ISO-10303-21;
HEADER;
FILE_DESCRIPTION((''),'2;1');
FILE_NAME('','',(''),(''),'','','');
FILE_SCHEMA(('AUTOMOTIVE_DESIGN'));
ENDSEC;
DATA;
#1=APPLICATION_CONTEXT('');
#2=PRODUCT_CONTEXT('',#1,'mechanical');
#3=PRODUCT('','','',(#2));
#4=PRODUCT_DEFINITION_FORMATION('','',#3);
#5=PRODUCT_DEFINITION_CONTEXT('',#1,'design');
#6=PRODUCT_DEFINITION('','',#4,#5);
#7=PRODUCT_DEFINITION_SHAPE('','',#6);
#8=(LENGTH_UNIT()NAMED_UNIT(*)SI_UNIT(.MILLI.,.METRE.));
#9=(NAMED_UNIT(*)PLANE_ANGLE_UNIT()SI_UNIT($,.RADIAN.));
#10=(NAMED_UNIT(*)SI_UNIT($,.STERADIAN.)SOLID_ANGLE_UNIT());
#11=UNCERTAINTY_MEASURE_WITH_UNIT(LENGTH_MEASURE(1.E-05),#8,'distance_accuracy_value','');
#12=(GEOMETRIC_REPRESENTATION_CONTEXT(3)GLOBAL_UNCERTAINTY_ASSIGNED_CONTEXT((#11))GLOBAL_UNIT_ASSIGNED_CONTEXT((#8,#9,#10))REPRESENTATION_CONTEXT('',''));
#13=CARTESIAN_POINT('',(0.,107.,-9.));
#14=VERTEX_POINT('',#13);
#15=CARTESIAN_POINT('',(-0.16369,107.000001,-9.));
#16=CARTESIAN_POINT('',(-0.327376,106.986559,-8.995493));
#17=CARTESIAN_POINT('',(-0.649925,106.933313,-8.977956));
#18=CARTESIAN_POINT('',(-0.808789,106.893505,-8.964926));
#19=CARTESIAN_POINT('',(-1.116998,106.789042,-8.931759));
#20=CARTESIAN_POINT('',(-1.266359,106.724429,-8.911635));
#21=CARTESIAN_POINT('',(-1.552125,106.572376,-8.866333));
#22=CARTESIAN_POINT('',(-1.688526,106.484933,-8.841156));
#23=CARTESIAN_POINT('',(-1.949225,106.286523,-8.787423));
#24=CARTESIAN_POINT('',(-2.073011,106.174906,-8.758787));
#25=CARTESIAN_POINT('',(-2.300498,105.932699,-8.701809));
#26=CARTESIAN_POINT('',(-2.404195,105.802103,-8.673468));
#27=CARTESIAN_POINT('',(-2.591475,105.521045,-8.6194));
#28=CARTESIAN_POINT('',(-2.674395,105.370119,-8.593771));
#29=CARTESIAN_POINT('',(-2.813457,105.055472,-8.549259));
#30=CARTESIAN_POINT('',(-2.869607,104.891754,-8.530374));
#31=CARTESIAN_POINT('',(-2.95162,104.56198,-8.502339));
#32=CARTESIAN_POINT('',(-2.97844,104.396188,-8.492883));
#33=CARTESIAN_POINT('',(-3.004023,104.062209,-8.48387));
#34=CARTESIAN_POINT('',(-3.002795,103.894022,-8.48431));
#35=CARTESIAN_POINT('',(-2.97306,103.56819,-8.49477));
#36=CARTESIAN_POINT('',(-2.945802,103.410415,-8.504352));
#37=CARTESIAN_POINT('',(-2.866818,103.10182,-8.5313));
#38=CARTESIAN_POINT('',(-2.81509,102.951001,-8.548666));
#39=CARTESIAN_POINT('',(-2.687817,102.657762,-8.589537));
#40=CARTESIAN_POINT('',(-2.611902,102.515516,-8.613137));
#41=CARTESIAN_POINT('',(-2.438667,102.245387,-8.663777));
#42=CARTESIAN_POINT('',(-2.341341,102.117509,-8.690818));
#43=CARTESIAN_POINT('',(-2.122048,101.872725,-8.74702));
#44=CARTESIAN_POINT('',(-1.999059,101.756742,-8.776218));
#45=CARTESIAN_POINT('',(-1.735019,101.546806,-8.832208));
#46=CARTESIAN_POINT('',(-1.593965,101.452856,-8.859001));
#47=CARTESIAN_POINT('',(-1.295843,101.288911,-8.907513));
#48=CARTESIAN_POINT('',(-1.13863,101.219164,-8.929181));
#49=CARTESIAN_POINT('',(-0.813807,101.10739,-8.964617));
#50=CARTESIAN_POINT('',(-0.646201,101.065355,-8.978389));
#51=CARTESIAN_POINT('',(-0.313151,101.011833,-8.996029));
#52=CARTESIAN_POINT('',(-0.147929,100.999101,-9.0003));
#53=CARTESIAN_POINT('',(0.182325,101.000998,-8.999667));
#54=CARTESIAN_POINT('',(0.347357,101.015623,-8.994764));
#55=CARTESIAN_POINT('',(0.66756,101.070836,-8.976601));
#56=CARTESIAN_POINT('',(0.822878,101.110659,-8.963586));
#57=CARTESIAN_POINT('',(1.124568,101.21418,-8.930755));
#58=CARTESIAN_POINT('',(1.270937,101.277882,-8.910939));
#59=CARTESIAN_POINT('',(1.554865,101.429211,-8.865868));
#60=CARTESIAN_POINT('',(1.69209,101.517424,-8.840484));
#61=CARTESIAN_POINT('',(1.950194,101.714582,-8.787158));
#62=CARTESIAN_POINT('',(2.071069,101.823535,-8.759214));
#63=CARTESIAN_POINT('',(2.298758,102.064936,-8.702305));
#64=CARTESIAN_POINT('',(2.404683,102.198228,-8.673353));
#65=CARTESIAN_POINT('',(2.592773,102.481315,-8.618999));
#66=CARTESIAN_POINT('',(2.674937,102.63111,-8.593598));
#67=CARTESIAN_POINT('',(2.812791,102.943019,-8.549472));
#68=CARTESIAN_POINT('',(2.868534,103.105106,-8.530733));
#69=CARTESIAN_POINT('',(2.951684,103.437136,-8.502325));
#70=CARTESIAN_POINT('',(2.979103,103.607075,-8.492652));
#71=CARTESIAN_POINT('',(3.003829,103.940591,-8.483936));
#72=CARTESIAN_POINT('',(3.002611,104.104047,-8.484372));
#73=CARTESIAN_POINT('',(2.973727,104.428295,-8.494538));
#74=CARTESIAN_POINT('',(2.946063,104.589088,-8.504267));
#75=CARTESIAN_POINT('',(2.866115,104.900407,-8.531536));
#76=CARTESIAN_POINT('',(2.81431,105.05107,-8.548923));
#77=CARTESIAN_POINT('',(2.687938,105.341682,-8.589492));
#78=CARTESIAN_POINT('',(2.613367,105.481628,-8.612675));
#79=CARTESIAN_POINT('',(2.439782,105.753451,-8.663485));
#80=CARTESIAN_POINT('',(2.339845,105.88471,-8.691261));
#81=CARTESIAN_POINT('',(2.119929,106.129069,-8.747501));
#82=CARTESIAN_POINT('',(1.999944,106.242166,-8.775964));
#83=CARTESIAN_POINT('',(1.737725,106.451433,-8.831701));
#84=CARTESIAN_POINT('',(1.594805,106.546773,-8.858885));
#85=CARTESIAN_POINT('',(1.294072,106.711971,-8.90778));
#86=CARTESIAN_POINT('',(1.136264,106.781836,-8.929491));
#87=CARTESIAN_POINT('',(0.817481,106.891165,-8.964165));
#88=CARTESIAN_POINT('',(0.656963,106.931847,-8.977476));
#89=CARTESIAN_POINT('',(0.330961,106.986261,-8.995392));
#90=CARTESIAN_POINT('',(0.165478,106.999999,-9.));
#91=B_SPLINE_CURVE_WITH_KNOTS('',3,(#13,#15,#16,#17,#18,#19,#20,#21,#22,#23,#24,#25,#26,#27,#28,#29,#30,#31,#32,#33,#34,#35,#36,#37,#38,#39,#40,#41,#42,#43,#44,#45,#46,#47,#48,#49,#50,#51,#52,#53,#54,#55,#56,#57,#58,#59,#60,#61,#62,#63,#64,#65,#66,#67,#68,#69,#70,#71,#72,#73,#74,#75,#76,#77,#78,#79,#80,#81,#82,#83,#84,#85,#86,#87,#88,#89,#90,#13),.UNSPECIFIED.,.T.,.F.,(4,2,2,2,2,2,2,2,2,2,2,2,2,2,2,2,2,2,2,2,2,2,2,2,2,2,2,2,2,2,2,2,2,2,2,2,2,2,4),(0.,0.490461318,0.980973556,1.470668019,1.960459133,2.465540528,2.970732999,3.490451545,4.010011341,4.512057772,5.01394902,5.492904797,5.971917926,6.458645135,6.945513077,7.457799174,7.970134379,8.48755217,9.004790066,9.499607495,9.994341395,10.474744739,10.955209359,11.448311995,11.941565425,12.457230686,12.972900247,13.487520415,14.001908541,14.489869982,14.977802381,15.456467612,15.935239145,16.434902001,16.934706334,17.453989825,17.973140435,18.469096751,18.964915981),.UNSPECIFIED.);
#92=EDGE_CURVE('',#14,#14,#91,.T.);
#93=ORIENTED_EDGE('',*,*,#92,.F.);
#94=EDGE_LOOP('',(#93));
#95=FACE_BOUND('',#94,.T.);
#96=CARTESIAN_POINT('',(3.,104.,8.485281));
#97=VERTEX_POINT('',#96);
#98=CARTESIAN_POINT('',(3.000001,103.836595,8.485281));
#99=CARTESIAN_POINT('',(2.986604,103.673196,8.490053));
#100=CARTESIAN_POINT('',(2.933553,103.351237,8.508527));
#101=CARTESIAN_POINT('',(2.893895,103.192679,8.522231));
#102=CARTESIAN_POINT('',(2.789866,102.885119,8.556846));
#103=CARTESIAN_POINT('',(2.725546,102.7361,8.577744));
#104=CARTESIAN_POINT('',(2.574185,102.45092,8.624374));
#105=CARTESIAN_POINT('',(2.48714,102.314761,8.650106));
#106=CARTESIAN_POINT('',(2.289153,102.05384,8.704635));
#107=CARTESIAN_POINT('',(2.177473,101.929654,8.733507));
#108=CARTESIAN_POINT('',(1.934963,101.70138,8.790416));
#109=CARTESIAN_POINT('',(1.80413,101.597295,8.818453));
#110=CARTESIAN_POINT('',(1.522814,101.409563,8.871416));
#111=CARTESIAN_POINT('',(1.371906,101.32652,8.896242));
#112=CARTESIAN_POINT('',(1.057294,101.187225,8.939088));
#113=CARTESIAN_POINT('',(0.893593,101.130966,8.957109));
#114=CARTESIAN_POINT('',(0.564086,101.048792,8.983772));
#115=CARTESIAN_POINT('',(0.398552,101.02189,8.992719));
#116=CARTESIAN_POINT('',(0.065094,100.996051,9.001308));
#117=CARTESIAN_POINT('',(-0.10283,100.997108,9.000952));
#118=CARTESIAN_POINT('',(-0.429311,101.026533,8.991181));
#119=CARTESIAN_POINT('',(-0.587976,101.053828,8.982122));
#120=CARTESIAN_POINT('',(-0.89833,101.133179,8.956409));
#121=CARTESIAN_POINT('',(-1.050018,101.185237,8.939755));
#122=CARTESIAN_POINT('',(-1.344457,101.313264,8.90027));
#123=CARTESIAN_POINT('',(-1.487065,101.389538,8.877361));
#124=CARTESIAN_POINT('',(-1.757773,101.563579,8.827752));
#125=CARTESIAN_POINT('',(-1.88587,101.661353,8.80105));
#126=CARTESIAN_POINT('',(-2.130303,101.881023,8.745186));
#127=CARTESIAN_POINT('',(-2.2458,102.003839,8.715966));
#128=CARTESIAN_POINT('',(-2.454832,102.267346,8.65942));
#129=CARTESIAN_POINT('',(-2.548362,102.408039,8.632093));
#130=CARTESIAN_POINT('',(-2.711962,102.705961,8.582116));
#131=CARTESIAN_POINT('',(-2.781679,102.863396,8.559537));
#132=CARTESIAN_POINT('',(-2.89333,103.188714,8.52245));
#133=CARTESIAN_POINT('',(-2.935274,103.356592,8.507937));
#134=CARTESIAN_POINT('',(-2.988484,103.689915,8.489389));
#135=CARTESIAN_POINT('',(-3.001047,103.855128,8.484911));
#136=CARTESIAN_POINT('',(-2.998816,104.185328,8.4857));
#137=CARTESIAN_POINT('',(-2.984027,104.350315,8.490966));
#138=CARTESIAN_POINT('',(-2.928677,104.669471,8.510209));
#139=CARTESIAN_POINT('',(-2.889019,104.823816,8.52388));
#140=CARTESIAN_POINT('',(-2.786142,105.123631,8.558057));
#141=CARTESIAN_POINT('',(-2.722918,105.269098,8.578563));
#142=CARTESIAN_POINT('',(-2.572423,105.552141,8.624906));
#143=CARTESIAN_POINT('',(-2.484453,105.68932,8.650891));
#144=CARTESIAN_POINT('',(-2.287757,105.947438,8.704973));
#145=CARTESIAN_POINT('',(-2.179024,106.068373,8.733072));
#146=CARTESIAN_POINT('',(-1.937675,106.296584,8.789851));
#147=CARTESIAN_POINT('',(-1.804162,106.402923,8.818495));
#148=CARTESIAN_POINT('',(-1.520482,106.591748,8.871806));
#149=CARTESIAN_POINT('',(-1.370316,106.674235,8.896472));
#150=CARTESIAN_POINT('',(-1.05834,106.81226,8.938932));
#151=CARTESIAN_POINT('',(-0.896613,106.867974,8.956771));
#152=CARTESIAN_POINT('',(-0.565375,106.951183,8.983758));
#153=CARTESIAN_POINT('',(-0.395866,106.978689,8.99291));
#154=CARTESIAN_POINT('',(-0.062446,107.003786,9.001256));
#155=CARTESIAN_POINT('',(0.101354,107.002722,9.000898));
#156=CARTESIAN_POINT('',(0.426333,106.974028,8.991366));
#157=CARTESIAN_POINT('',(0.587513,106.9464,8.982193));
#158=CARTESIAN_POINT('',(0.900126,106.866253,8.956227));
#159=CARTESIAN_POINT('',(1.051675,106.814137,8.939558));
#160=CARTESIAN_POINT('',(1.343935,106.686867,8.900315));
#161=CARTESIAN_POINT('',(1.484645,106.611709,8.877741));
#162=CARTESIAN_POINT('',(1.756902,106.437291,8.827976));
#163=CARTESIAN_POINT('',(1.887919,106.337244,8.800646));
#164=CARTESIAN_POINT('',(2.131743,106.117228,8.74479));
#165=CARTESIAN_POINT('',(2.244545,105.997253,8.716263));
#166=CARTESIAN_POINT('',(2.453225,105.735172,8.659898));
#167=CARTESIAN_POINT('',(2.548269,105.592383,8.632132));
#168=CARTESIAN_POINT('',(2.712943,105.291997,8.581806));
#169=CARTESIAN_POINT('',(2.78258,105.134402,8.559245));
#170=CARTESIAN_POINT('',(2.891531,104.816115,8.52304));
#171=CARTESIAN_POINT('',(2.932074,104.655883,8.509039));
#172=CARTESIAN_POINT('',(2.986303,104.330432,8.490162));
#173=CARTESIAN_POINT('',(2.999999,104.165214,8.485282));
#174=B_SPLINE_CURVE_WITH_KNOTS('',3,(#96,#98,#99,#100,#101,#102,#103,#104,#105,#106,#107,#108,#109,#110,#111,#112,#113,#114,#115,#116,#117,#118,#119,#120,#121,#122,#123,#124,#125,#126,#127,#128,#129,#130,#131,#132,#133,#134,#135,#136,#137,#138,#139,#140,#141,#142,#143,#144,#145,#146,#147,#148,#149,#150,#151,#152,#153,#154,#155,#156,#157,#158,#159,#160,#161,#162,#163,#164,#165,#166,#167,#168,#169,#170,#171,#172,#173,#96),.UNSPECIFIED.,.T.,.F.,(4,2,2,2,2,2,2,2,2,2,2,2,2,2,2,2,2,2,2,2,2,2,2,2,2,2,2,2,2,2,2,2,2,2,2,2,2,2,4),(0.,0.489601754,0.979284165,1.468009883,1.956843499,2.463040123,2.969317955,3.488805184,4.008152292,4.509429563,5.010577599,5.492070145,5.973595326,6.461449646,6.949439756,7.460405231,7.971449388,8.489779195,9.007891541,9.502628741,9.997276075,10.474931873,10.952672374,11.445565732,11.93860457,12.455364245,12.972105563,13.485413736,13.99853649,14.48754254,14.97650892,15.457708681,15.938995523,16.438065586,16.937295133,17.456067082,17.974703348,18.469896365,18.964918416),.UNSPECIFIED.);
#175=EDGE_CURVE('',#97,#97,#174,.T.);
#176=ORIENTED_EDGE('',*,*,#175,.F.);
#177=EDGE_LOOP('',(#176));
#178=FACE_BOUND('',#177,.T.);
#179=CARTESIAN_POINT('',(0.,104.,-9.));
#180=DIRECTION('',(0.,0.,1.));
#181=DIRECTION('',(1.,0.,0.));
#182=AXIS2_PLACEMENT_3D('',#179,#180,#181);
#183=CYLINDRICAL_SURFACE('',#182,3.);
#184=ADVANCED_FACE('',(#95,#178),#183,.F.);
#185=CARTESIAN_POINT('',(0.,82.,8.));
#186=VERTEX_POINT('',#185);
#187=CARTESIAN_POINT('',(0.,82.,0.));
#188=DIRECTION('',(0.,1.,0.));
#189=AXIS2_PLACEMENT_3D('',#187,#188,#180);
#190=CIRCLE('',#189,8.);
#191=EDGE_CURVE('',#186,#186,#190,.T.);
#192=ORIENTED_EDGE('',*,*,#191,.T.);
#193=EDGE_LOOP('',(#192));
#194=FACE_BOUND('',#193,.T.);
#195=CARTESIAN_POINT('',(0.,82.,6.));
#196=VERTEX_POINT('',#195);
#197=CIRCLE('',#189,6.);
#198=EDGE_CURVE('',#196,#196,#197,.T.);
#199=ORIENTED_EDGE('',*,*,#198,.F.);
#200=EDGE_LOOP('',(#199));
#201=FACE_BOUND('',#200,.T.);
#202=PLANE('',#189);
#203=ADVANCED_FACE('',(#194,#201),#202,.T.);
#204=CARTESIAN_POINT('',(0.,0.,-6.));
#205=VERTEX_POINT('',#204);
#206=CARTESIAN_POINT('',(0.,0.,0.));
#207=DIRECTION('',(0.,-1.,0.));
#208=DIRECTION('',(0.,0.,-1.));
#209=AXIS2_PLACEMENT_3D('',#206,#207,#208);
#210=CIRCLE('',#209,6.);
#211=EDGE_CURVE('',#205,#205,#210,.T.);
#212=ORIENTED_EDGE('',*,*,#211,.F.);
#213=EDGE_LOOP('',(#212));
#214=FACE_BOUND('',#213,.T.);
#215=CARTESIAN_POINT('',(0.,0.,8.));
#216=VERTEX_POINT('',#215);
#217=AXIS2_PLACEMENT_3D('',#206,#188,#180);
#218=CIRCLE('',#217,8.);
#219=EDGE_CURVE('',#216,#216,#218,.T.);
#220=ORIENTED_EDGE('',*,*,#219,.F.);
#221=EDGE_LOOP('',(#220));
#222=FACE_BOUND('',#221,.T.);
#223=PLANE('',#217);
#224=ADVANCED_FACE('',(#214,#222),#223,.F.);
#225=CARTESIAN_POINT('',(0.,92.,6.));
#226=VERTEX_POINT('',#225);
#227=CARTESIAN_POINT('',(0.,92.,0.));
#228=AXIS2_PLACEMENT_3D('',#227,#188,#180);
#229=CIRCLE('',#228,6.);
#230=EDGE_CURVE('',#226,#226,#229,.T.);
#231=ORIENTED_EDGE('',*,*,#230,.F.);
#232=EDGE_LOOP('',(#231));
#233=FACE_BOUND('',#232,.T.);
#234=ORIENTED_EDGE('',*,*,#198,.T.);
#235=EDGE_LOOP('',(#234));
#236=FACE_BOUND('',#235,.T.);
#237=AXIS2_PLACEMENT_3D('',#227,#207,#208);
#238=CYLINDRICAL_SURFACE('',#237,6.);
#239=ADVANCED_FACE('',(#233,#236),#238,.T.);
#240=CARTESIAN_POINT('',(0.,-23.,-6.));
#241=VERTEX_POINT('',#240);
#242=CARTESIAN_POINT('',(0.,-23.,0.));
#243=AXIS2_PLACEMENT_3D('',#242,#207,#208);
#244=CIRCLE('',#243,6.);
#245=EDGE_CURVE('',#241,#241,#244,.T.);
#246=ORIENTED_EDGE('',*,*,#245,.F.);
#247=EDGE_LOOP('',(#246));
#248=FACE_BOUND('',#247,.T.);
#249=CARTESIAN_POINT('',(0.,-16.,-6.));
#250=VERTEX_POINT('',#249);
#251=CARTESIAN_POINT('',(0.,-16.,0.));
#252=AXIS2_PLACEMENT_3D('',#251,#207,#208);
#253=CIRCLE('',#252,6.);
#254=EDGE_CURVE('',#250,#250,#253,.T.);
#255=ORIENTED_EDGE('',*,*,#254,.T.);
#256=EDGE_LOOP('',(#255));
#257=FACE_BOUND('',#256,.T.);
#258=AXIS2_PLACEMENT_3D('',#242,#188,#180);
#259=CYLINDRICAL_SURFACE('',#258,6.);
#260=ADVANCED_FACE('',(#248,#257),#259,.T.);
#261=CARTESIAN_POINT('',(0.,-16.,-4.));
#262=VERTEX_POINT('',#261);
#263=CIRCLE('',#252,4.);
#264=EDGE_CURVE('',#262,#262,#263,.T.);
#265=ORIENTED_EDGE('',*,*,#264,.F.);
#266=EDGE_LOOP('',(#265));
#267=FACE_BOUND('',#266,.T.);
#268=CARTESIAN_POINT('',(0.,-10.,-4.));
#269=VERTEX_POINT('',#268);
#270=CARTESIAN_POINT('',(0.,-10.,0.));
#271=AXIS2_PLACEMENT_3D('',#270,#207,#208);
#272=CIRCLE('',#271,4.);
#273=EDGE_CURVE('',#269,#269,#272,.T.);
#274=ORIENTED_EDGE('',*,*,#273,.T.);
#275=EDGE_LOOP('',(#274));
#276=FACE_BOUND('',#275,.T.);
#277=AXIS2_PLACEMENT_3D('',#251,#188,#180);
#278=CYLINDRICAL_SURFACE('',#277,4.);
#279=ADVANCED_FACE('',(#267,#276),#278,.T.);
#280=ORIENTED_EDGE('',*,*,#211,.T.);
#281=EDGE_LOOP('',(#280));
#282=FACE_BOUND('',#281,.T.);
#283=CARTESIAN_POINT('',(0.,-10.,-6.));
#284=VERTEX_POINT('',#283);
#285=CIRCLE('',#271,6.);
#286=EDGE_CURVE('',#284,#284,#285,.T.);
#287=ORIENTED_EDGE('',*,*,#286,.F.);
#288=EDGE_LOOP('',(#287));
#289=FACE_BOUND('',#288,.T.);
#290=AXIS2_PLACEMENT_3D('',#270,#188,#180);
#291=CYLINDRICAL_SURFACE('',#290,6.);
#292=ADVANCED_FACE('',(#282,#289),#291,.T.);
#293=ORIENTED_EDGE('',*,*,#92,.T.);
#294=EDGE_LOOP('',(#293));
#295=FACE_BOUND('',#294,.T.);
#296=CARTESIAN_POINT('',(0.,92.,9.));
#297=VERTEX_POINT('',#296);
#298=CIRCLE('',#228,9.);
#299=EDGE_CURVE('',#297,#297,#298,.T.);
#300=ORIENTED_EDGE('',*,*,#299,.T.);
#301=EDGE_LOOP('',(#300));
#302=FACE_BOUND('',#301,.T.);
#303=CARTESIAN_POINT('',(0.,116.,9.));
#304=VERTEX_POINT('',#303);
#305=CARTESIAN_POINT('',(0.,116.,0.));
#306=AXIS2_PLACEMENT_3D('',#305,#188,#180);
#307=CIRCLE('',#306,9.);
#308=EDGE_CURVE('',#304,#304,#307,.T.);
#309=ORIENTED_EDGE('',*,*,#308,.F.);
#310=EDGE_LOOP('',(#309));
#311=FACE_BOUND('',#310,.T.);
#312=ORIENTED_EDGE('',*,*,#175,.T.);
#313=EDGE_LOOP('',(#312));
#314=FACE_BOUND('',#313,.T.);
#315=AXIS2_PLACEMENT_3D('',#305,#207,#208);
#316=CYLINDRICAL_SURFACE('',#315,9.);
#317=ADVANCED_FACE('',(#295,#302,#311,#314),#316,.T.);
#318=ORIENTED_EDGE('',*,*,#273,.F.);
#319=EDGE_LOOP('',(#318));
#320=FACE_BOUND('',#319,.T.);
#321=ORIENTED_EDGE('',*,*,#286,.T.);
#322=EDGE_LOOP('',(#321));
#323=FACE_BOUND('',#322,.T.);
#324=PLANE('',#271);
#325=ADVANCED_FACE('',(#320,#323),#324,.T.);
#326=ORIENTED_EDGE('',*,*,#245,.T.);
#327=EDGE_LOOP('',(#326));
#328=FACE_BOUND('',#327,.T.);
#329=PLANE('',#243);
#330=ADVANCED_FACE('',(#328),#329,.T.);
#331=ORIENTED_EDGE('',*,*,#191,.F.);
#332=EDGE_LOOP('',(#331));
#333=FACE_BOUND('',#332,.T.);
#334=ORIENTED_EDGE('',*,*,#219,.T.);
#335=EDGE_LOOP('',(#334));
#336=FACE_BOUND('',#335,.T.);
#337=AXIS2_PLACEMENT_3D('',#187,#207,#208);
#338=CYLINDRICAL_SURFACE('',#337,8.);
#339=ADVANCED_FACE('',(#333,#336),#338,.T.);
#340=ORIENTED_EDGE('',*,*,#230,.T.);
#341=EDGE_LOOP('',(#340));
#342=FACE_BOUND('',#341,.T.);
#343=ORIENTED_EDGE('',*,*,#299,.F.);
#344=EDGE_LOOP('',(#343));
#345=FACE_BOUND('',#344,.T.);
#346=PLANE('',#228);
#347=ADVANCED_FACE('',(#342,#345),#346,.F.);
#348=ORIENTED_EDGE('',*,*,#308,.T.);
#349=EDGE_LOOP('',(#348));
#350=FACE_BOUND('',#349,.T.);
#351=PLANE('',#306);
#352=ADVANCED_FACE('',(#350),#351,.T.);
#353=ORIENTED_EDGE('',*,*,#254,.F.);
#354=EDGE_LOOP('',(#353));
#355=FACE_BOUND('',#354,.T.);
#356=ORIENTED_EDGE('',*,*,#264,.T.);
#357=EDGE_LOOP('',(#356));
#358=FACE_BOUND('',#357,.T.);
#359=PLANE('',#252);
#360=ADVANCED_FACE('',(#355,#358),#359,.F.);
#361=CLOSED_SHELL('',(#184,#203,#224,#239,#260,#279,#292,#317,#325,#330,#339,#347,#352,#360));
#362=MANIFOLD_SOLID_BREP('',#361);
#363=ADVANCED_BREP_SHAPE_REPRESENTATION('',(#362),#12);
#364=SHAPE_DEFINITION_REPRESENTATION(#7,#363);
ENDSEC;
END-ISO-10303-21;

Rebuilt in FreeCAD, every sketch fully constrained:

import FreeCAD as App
import Part
import Sketcher

doc = App.newDocument("Part")
body = doc.addObject("PartDesign::Body", "Body")

# Sketch on XZ plane
sketch1 = doc.addObject("Sketcher::SketchObject", "Sketch")
body.addObject(sketch1)
sketch1.AttachmentSupport = (doc.XZ_Plane, [""])
sketch1.MapMode = "FlatFace"
sketch1.addGeometry(Part.Circle(App.Vector(0, 0, 0), App.Vector(0, 0, 1), 8), False)
sketch1.addConstraint([
    Sketcher.Constraint("Coincident", 0, 3, -1, 1),
    Sketcher.Constraint("Diameter", 0, 16.0),
])
pad1 = doc.addObject("PartDesign::Pad", "Pad")
body.addObject(pad1)
pad1.Profile = sketch1
pad1.Length = 82
pad1.Reversed = True

# Sketch on XZ plane
sketch2 = doc.addObject("Sketcher::SketchObject", "Sketch001")
body.addObject(sketch2)
sketch2.AttachmentSupport = (doc.XZ_Plane, [""])
sketch2.MapMode = "FlatFace"
sketch2.AttachmentOffset = App.Placement(App.Vector(0, 0, -82), App.Rotation())
sketch2.addGeometry(Part.Circle(App.Vector(0, 0, 0), App.Vector(0, 0, 1), 6), False)
sketch2.addConstraint([
    Sketcher.Constraint("Coincident", 0, 3, -1, 1),
    Sketcher.Constraint("Diameter", 0, 12.0),
])
pad2 = doc.addObject("PartDesign::Pad", "Pad001")
body.addObject(pad2)
pad2.Profile = sketch2
pad2.Length = 10
pad2.Reversed = True

# Sketch on XZ plane
sketch3 = doc.addObject("Sketcher::SketchObject", "Sketch002")
body.addObject(sketch3)
sketch3.AttachmentSupport = (doc.XZ_Plane, [""])
sketch3.MapMode = "FlatFace"
sketch3.AttachmentOffset = App.Placement(App.Vector(0, 0, -92), App.Rotation())
sketch3.addGeometry(Part.Circle(App.Vector(0, 0, 0), App.Vector(0, 0, 1), 9), False)
sketch3.addConstraint([
    Sketcher.Constraint("Coincident", 0, 3, -1, 1),
    Sketcher.Constraint("Diameter", 0, 18.0),
])
pad3 = doc.addObject("PartDesign::Pad", "Pad002")
body.addObject(pad3)
pad3.Profile = sketch3
pad3.Length = 24
pad3.Reversed = True

# Sketch on XZ plane
sketch4 = doc.addObject("Sketcher::SketchObject", "Sketch003")
body.addObject(sketch4)
sketch4.AttachmentSupport = (doc.XZ_Plane, [""])
sketch4.MapMode = "FlatFace"
sketch4.addGeometry(Part.Circle(App.Vector(0, 0, 0), App.Vector(0, 0, 1), 6), False)
sketch4.addConstraint([
    Sketcher.Constraint("Coincident", 0, 3, -1, 1),
    Sketcher.Constraint("Diameter", 0, 12.0),
])
pad4 = doc.addObject("PartDesign::Pad", "Pad003")
body.addObject(pad4)
pad4.Profile = sketch4
pad4.Length = 10

# Sketch on XZ plane
sketch5 = doc.addObject("Sketcher::SketchObject", "Sketch004")
body.addObject(sketch5)
sketch5.AttachmentSupport = (doc.XZ_Plane, [""])
sketch5.MapMode = "FlatFace"
sketch5.AttachmentOffset = App.Placement(App.Vector(0, 0, 10), App.Rotation())
sketch5.addGeometry(Part.Circle(App.Vector(0, 0, 0), App.Vector(0, 0, 1), 4), False)
sketch5.addConstraint([
    Sketcher.Constraint("Coincident", 0, 3, -1, 1),
    Sketcher.Constraint("Diameter", 0, 8.0),
])
pad5 = doc.addObject("PartDesign::Pad", "Pad004")
body.addObject(pad5)
pad5.Profile = sketch5
pad5.Length = 6

# Sketch on XZ plane
sketch6 = doc.addObject("Sketcher::SketchObject", "Sketch005")
body.addObject(sketch6)
sketch6.AttachmentSupport = (doc.XZ_Plane, [""])
sketch6.MapMode = "FlatFace"
sketch6.AttachmentOffset = App.Placement(App.Vector(0, 0, 16), App.Rotation())
sketch6.addGeometry(Part.Circle(App.Vector(0, 0, 0), App.Vector(0, 0, 1), 6), False)
sketch6.addConstraint([
    Sketcher.Constraint("Coincident", 0, 3, -1, 1),
    Sketcher.Constraint("Diameter", 0, 12.0),
])
pad6 = doc.addObject("PartDesign::Pad", "Pad005")
body.addObject(pad6)
pad6.Profile = sketch6
pad6.Length = 7

# Sketch on XY plane
sketch7 = doc.addObject("Sketcher::SketchObject", "Sketch006")
body.addObject(sketch7)
sketch7.AttachmentSupport = (doc.XY_Plane, [""])
sketch7.MapMode = "FlatFace"
sketch7.addGeometry(Part.Circle(App.Vector(0, 104, 0), App.Vector(0, 0, 1), 3), False)
sketch7.addConstraint([
    Sketcher.Constraint("PointOnObject", 0, 3, -2),
    Sketcher.Constraint("Diameter", 0, 6.0),
    Sketcher.Constraint("DistanceY", -1, 1, 0, 3, 104.0),
])
pocket1 = doc.addObject("PartDesign::Pocket", "Pocket")
body.addObject(pocket1)
pocket1.Profile = sketch7
pocket1.Type = "ThroughAll"
pocket1.Midplane = True

doc.recompute()
